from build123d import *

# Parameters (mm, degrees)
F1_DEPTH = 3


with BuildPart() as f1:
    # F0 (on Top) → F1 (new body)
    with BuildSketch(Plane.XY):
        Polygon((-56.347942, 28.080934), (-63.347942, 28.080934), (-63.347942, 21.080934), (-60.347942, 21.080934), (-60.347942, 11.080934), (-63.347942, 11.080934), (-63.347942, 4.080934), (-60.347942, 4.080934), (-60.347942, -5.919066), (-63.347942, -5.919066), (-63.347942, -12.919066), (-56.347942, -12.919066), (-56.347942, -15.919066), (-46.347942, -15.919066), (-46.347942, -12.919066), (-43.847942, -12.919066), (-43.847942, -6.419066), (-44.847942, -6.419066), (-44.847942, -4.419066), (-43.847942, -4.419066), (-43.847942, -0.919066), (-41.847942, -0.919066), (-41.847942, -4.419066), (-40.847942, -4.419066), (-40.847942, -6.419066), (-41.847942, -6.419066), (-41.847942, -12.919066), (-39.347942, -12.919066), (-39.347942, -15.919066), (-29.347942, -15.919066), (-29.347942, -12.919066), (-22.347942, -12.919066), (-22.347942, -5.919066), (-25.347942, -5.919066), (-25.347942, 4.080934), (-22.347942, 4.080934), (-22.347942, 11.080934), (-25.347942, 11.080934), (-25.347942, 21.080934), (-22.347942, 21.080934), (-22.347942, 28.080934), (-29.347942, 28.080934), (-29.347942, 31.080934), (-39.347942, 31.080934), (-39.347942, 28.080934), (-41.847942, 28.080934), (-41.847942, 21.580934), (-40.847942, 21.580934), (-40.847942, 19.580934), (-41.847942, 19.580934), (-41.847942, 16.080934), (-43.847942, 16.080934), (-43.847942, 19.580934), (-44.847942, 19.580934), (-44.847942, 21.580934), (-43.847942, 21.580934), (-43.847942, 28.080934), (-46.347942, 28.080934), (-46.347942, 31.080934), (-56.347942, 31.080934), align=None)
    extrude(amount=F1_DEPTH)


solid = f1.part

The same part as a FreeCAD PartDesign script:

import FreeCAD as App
import Part
import Sketcher

doc = App.newDocument("Part")
body = doc.addObject("PartDesign::Body", "Body")

sketch1 = body.newObject("Sketcher::SketchObject", "Sketch")
sketch1.AttachmentSupport = (doc.getObject("XY_Plane"), [""])
sketch1.MapMode = "FlatFace"
sketch1.addGeometry(Part.LineSegment(App.Vector(-56.3, 28.1, 0), App.Vector(-63.3, 28.1, 0)), False)
sketch1.addGeometry(Part.LineSegment(App.Vector(-63.3, 28.1, 0), App.Vector(-63.3, 21.1, 0)), False)
sketch1.addGeometry(Part.LineSegment(App.Vector(-63.3, 21.1, 0), App.Vector(-60.3, 21.1, 0)), False)
sketch1.addGeometry(Part.LineSegment(App.Vector(-60.3, 21.1, 0), App.Vector(-60.3, 11.1, 0)), False)
sketch1.addGeometry(Part.LineSegment(App.Vector(-60.3, 11.1, 0), App.Vector(-63.3, 11.1, 0)), False)
sketch1.addGeometry(Part.LineSegment(App.Vector(-63.3, 11.1, 0), App.Vector(-63.3, 4.1, 0)), False)
sketch1.addGeometry(Part.LineSegment(App.Vector(-63.3, 4.1, 0), App.Vector(-60.3, 4.1, 0)), False)
sketch1.addGeometry(Part.LineSegment(App.Vector(-60.3, 4.1, 0), App.Vector(-60.3, -5.9, 0)), False)
sketch1.addGeometry(Part.LineSegment(App.Vector(-60.3, -5.9, 0), App.Vector(-63.3, -5.9, 0)), False)
sketch1.addGeometry(Part.LineSegment(App.Vector(-63.3, -5.9, 0), App.Vector(-63.3, -12.9, 0)), False)
sketch1.addGeometry(Part.LineSegment(App.Vector(-63.3, -12.9, 0), App.Vector(-56.3, -12.9, 0)), False)
sketch1.addGeometry(Part.LineSegment(App.Vector(-56.3, -12.9, 0), App.Vector(-56.3, -15.9, 0)), False)
sketch1.addGeometry(Part.LineSegment(App.Vector(-56.3, -15.9, 0), App.Vector(-46.3, -15.9, 0)), False)
sketch1.addGeometry(Part.LineSegment(App.Vector(-46.3, -15.9, 0), App.Vector(-46.3, -12.9, 0)), False)
sketch1.addGeometry(Part.LineSegment(App.Vector(-46.3, -12.9, 0), App.Vector(-43.8, -12.9, 0)), False)
sketch1.addGeometry(Part.LineSegment(App.Vector(-43.8, -12.9, 0), App.Vector(-43.8, -6.4, 0)), False)
sketch1.addGeometry(Part.LineSegment(App.Vector(-43.8, -6.4, 0), App.Vector(-44.8, -6.4, 0)), False)
sketch1.addGeometry(Part.LineSegment(App.Vector(-44.8, -6.4, 0), App.Vector(-44.8, -4.4, 0)), False)
sketch1.addGeometry(Part.LineSegment(App.Vector(-44.8, -4.4, 0), App.Vector(-43.8, -4.4, 0)), False)
sketch1.addGeometry(Part.LineSegment(App.Vector(-43.8, -4.4, 0), App.Vector(-43.8, -0.9, 0)), False)
sketch1.addGeometry(Part.LineSegment(App.Vector(-43.8, -0.9, 0), App.Vector(-41.8, -0.9, 0)), False)
sketch1.addGeometry(Part.LineSegment(App.Vector(-41.8, -0.9, 0), App.Vector(-41.8, -4.4, 0)), False)
sketch1.addGeometry(Part.LineSegment(App.Vector(-41.8, -4.4, 0), App.Vector(-40.8, -4.4, 0)), False)
sketch1.addGeometry(Part.LineSegment(App.Vector(-40.8, -4.4, 0), App.Vector(-40.8, -6.4, 0)), False)
sketch1.addGeometry(Part.LineSegment(App.Vector(-40.8, -6.4, 0), App.Vector(-41.8, -6.4, 0)), False)
sketch1.addGeometry(Part.LineSegment(App.Vector(-41.8, -6.4, 0), App.Vector(-41.8, -12.9, 0)), False)
sketch1.addGeometry(Part.LineSegment(App.Vector(-41.8, -12.9, 0), App.Vector(-39.3, -12.9, 0)), False)
sketch1.addGeometry(Part.LineSegment(App.Vector(-39.3, -12.9, 0), App.Vector(-39.3, -15.9, 0)), False)
sketch1.addGeometry(Part.LineSegment(App.Vector(-39.3, -15.9, 0), App.Vector(-29.3, -15.9, 0)), False)
sketch1.addGeometry(Part.LineSegment(App.Vector(-29.3, -15.9, 0), App.Vector(-29.3, -12.9, 0)), False)
sketch1.addGeometry(Part.LineSegment(App.Vector(-29.3, -12.9, 0), App.Vector(-22.3, -12.9, 0)), False)
sketch1.addGeometry(Part.LineSegment(App.Vector(-22.3, -12.9, 0), App.Vector(-22.3, -5.9, 0)), False)
sketch1.addGeometry(Part.LineSegment(App.Vector(-22.3, -5.9, 0), App.Vector(-25.3, -5.9, 0)), False)
sketch1.addGeometry(Part.LineSegment(App.Vector(-25.3, -5.9, 0), App.Vector(-25.3, 4.1, 0)), False)
sketch1.addGeometry(Part.LineSegment(App.Vector(-25.3, 4.1, 0), App.Vector(-22.3, 4.1, 0)), False)
sketch1.addGeometry(Part.LineSegment(App.Vector(-22.3, 4.1, 0), App.Vector(-22.3, 11.1, 0)), False)
sketch1.addGeometry(Part.LineSegment(App.Vector(-22.3, 11.1, 0), App.Vector(-25.3, 11.1, 0)), False)
sketch1.addGeometry(Part.LineSegment(App.Vector(-25.3, 11.1, 0), App.Vector(-25.3, 21.1, 0)), False)
sketch1.addGeometry(Part.LineSegment(App.Vector(-25.3, 21.1, 0), App.Vector(-22.3, 21.1, 0)), False)
sketch1.addGeometry(Part.LineSegment(App.Vector(-22.3, 21.1, 0), App.Vector(-22.3, 28.1, 0)), False)
sketch1.addGeometry(Part.LineSegment(App.Vector(-22.3, 28.1, 0), App.Vector(-29.3, 28.1, 0)), False)
sketch1.addGeometry(Part.LineSegment(App.Vector(-29.3, 28.1, 0), App.Vector(-29.3, 31.1, 0)), False)
sketch1.addGeometry(Part.LineSegment(App.Vector(-29.3, 31.1, 0), App.Vector(-39.3, 31.1, 0)), False)
sketch1.addGeometry(Part.LineSegment(App.Vector(-39.3, 31.1, 0), App.Vector(-39.3, 28.1, 0)), False)
sketch1.addGeometry(Part.LineSegment(App.Vector(-39.3, 28.1, 0), App.Vector(-41.8, 28.1, 0)), False)
sketch1.addGeometry(Part.LineSegment(App.Vector(-41.8, 28.1, 0), App.Vector(-41.8, 21.6, 0)), False)
sketch1.addGeometry(Part.LineSegment(App.Vector(-41.8, 21.6, 0), App.Vector(-40.8, 21.6, 0)), False)
sketch1.addGeometry(Part.LineSegment(App.Vector(-40.8, 21.6, 0), App.Vector(-40.8, 19.6, 0)), False)
sketch1.addGeometry(Part.LineSegment(App.Vector(-40.8, 19.6, 0), App.Vector(-41.8, 19.6, 0)), False)
sketch1.addGeometry(Part.LineSegment(App.Vector(-41.8, 19.6, 0), App.Vector(-41.8, 16.1, 0)), False)
sketch1.addGeometry(Part.LineSegment(App.Vector(-41.8, 16.1, 0), App.Vector(-43.8, 16.1, 0)), False)
sketch1.addGeometry(Part.LineSegment(App.Vector(-43.8, 16.1, 0), App.Vector(-43.8, 19.6, 0)), False)
sketch1.addGeometry(Part.LineSegment(App.Vector(-43.8, 19.6, 0), App.Vector(-44.8, 19.6, 0)), False)
sketch1.addGeometry(Part.LineSegment(App.Vector(-44.8, 19.6, 0), App.Vector(-44.8, 21.6, 0)), False)
sketch1.addGeometry(Part.LineSegment(App.Vector(-44.8, 21.6, 0), App.Vector(-43.8, 21.6, 0)), False)
sketch1.addGeometry(Part.LineSegment(App.Vector(-43.8, 21.6, 0), App.Vector(-43.8, 28.1, 0)), False)
sketch1.addGeometry(Part.LineSegment(App.Vector(-43.8, 28.1, 0), App.Vector(-46.3, 28.1, 0)), False)
sketch1.addGeometry(Part.LineSegment(App.Vector(-46.3, 28.1, 0), App.Vector(-46.3, 31.1, 0)), False)
sketch1.addGeometry(Part.LineSegment(App.Vector(-46.3, 31.1, 0), App.Vector(-56.3, 31.1, 0)), False)
sketch1.addGeometry(Part.LineSegment(App.Vector(-56.3, 31.1, 0), App.Vector(-56.3, 28.1, 0)), False)
sketch1.addConstraint(Sketcher.Constraint("Coincident", 0, 2, 1, 1))
sketch1.addConstraint(Sketcher.Constraint("Coincident", 1, 2, 2, 1))
sketch1.addConstraint(Sketcher.Constraint("Coincident", 2, 2, 3, 1))
sketch1.addConstraint(Sketcher.Constraint("Coincident", 3, 2, 4, 1))
sketch1.addConstraint(Sketcher.Constraint("Coincident", 4, 2, 5, 1))
sketch1.addConstraint(Sketcher.Constraint("Coincident", 5, 2, 6, 1))
sketch1.addConstraint(Sketcher.Constraint("Coincident", 6, 2, 7, 1))
sketch1.addConstraint(Sketcher.Constraint("Coincident", 7, 2, 8, 1))
sketch1.addConstraint(Sketcher.Constraint("Coincident", 8, 2, 9, 1))
sketch1.addConstraint(Sketcher.Constraint("Coincident", 9, 2, 10, 1))
sketch1.addConstraint(Sketcher.Constraint("Coincident", 10, 2, 11, 1))
sketch1.addConstraint(Sketcher.Constraint("Coincident", 11, 2, 12, 1))
sketch1.addConstraint(Sketcher.Constraint("Coincident", 12, 2, 13, 1))
sketch1.addConstraint(Sketcher.Constraint("Coincident", 13, 2, 14, 1))
sketch1.addConstraint(Sketcher.Constraint("Coincident", 14, 2, 15, 1))
sketch1.addConstraint(Sketcher.Constraint("Coincident", 15, 2, 16, 1))
sketch1.addConstraint(Sketcher.Constraint("Coincident", 16, 2, 17, 1))
sketch1.addConstraint(Sketcher.Constraint("Coincident", 17, 2, 18, 1))
sketch1.addConstraint(Sketcher.Constraint("Coincident", 18, 2, 19, 1))
sketch1.addConstraint(Sketcher.Constraint("Coincident", 19, 2, 20, 1))
sketch1.addConstraint(Sketcher.Constraint("Coincident", 20, 2, 21, 1))
sketch1.addConstraint(Sketcher.Constraint("Coincident", 21, 2, 22, 1))
sketch1.addConstraint(Sketcher.Constraint("Coincident", 22, 2, 23, 1))
sketch1.addConstraint(Sketcher.Constraint("Coincident", 23, 2, 24, 1))
sketch1.addConstraint(Sketcher.Constraint("Coincident", 24, 2, 25, 1))
sketch1.addConstraint(Sketcher.Constraint("Coincident", 25, 2, 26, 1))
sketch1.addConstraint(Sketcher.Constraint("Coincident", 26, 2, 27, 1))
sketch1.addConstraint(Sketcher.Constraint("Coincident", 27, 2, 28, 1))
sketch1.addConstraint(Sketcher.Constraint("Coincident", 28, 2, 29, 1))
sketch1.addConstraint(Sketcher.Constraint("Coincident", 29, 2, 30, 1))
sketch1.addConstraint(Sketcher.Constraint("Coincident", 30, 2, 31, 1))
sketch1.addConstraint(Sketcher.Constraint("Coincident", 31, 2, 32, 1))
sketch1.addConstraint(Sketcher.Constraint("Coincident", 32, 2, 33, 1))
sketch1.addConstraint(Sketcher.Constraint("Coincident", 33, 2, 34, 1))
sketch1.addConstraint(Sketcher.Constraint("Coincident", 34, 2, 35, 1))
sketch1.addConstraint(Sketcher.Constraint("Coincident", 35, 2, 36, 1))
sketch1.addConstraint(Sketcher.Constraint("Coincident", 36, 2, 37, 1))
sketch1.addConstraint(Sketcher.Constraint("Coincident", 37, 2, 38, 1))
sketch1.addConstraint(Sketcher.Constraint("Coincident", 38, 2, 39, 1))
sketch1.addConstraint(Sketcher.Constraint("Coincident", 39, 2, 40, 1))
sketch1.addConstraint(Sketcher.Constraint("Coincident", 40, 2, 41, 1))
sketch1.addConstraint(Sketcher.Constraint("Coincident", 41, 2, 42, 1))
sketch1.addConstraint(Sketcher.Constraint("Coincident", 42, 2, 43, 1))
sketch1.addConstraint(Sketcher.Constraint("Coincident", 43, 2, 44, 1))
sketch1.addConstraint(Sketcher.Constraint("Coincident", 44, 2, 45, 1))
sketch1.addConstraint(Sketcher.Constraint("Coincident", 45, 2, 46, 1))
sketch1.addConstraint(Sketcher.Constraint("Coincident", 46, 2, 47, 1))
sketch1.addConstraint(Sketcher.Constraint("Coincident", 47, 2, 48, 1))
sketch1.addConstraint(Sketcher.Constraint("Coincident", 48, 2, 49, 1))
sketch1.addConstraint(Sketcher.Constraint("Coincident", 49, 2, 50, 1))
sketch1.addConstraint(Sketcher.Constraint("Coincident", 50, 2, 51, 1))
sketch1.addConstraint(Sketcher.Constraint("Coincident", 51, 2, 52, 1))
sketch1.addConstraint(Sketcher.Constraint("Coincident", 52, 2, 53, 1))
sketch1.addConstraint(Sketcher.Constraint("Coincident", 53, 2, 54, 1))
sketch1.addConstraint(Sketcher.Constraint("Coincident", 54, 2, 55, 1))
sketch1.addConstraint(Sketcher.Constraint("Coincident", 55, 2, 56, 1))
sketch1.addConstraint(Sketcher.Constraint("Coincident", 56, 2, 57, 1))
sketch1.addConstraint(Sketcher.Constraint("Coincident", 57, 2, 58, 1))
sketch1.addConstraint(Sketcher.Constraint("Coincident", 58, 2, 59, 1))
sketch1.addConstraint(Sketcher.Constraint("Coincident", 59, 2, 0, 1))
sketch1.addConstraint(Sketcher.Constraint("Horizontal", 0))
sketch1.addConstraint(Sketcher.Constraint("Vertical", 1))
sketch1.addConstraint(Sketcher.Constraint("Horizontal", 2))
sketch1.addConstraint(Sketcher.Constraint("Vertical", 3))
sketch1.addConstraint(Sketcher.Constraint("Horizontal", 4))
sketch1.addConstraint(Sketcher.Constraint("Vertical", 5))
sketch1.addConstraint(Sketcher.Constraint("Horizontal", 6))
sketch1.addConstraint(Sketcher.Constraint("Vertical", 7))
sketch1.addConstraint(Sketcher.Constraint("Horizontal", 8))
sketch1.addConstraint(Sketcher.Constraint("Vertical", 9))
sketch1.addConstraint(Sketcher.Constraint("Horizontal", 10))
sketch1.addConstraint(Sketcher.Constraint("Vertical", 11))
sketch1.addConstraint(Sketcher.Constraint("Horizontal", 12))
sketch1.addConstraint(Sketcher.Constraint("Vertical", 13))
sketch1.addConstraint(Sketcher.Constraint("Horizontal", 14))
sketch1.addConstraint(Sketcher.Constraint("Vertical", 15))
sketch1.addConstraint(Sketcher.Constraint("Horizontal", 16))
sketch1.addConstraint(Sketcher.Constraint("Vertical", 17))
sketch1.addConstraint(Sketcher.Constraint("Horizontal", 18))
sketch1.addConstraint(Sketcher.Constraint("Vertical", 19))
sketch1.addConstraint(Sketcher.Constraint("Horizontal", 20))
sketch1.addConstraint(Sketcher.Constraint("Vertical", 21))
sketch1.addConstraint(Sketcher.Constraint("Horizontal", 22))
sketch1.addConstraint(Sketcher.Constraint("Vertical", 23))
sketch1.addConstraint(Sketcher.Constraint("Horizontal", 24))
sketch1.addConstraint(Sketcher.Constraint("Vertical", 25))
sketch1.addConstraint(Sketcher.Constraint("Horizontal", 26))
sketch1.addConstraint(Sketcher.Constraint("Vertical", 27))
sketch1.addConstraint(Sketcher.Constraint("Horizontal", 28))
sketch1.addConstraint(Sketcher.Constraint("Vertical", 29))
sketch1.addConstraint(Sketcher.Constraint("Horizontal", 30))
sketch1.addConstraint(Sketcher.Constraint("Vertical", 31))
sketch1.addConstraint(Sketcher.Constraint("Horizontal", 32))
sketch1.addConstraint(Sketcher.Constraint("Vertical", 33))
sketch1.addConstraint(Sketcher.Constraint("Horizontal", 34))
sketch1.addConstraint(Sketcher.Constraint("Vertical", 35))
sketch1.addConstraint(Sketcher.Constraint("Horizontal", 36))
sketch1.addConstraint(Sketcher.Constraint("Vertical", 37))
sketch1.addConstraint(Sketcher.Constraint("Horizontal", 38))
sketch1.addConstraint(Sketcher.Constraint("Vertical", 39))
sketch1.addConstraint(Sketcher.Constraint("Horizontal", 40))
sketch1.addConstraint(Sketcher.Constraint("Vertical", 41))
sketch1.addConstraint(Sketcher.Constraint("Horizontal", 42))
sketch1.addConstraint(Sketcher.Constraint("Vertical", 43))
sketch1.addConstraint(Sketcher.Constraint("Horizontal", 44))
sketch1.addConstraint(Sketcher.Constraint("Vertical", 45))
sketch1.addConstraint(Sketcher.Constraint("Horizontal", 46))
sketch1.addConstraint(Sketcher.Constraint("Vertical", 47))
sketch1.addConstraint(Sketcher.Constraint("Horizontal", 48))
sketch1.addConstraint(Sketcher.Constraint("Vertical", 49))
sketch1.addConstraint(Sketcher.Constraint("Horizontal", 50))
sketch1.addConstraint(Sketcher.Constraint("Vertical", 51))
sketch1.addConstraint(Sketcher.Constraint("Horizontal", 52))
sketch1.addConstraint(Sketcher.Constraint("Vertical", 53))
sketch1.addConstraint(Sketcher.Constraint("Horizontal", 54))
sketch1.addConstraint(Sketcher.Constraint("Vertical", 55))
sketch1.addConstraint(Sketcher.Constraint("Horizontal", 56))
sketch1.addConstraint(Sketcher.Constraint("Vertical", 57))
sketch1.addConstraint(Sketcher.Constraint("Horizontal", 58))
sketch1.addConstraint(Sketcher.Constraint("Vertical", 59))
sketch1.addConstraint(Sketcher.Constraint("Horizontal", 10, 2, 13, 2))
sketch1.addConstraint(Sketcher.Constraint("Horizontal", 18, 2, 21, 2))
sketch1.addConstraint(Sketcher.Constraint("Horizontal", 16, 2, 23, 2))
sketch1.addConstraint(Sketcher.Constraint("Horizontal", 14, 2, 25, 2))
sketch1.addConstraint(Sketcher.Constraint("Horizontal", 12, 2, 27, 2))
sketch1.addConstraint(Sketcher.Constraint("Horizontal", 26, 2, 29, 2))
sketch1.addConstraint(Sketcher.Constraint("Horizontal", 8, 2, 31, 2))
sketch1.addConstraint(Sketcher.Constraint("Horizontal", 6, 2, 33, 2))
sketch1.addConstraint(Sketcher.Constraint("Horizontal", 4, 2, 35, 2))
sketch1.addConstraint(Sketcher.Constraint("Horizontal", 2, 2, 37, 2))
sketch1.addConstraint(Sketcher.Constraint("Horizontal", 0, 2, 39, 2))
sketch1.addConstraint(Sketcher.Constraint("Horizontal", 40, 2, 43, 2))
sketch1.addConstraint(Sketcher.Constraint("Horizontal", 48, 2, 51, 2))
sketch1.addConstraint(Sketcher.Constraint("Horizontal", 46, 2, 53, 2))
sketch1.addConstraint(Sketcher.Constraint("Horizontal", 44, 2, 55, 2))
sketch1.addConstraint(Sketcher.Constraint("Horizontal", 42, 2, 57, 2))
sketch1.addConstraint(Sketcher.Constraint("Vertical", 1, 2, 4, 2))
sketch1.addConstraint(Sketcher.Constraint("Vertical", 3, 2, 6, 2))
sketch1.addConstraint(Sketcher.Constraint("Vertical", 5, 2, 8, 2))
sketch1.addConstraint(Sketcher.Constraint("Vertical", 15, 2, 18, 2))
sketch1.addConstraint(Sketcher.Constraint("Vertical", 21, 2, 24, 2))
sketch1.addConstraint(Sketcher.Constraint("Vertical", 31, 2, 34, 2))
sketch1.addConstraint(Sketcher.Constraint("Vertical", 33, 2, 36, 2))
sketch1.addConstraint(Sketcher.Constraint("Vertical", 35, 2, 38, 2))
sketch1.addConstraint(Sketcher.Constraint("Vertical", 29, 2, 40, 2))
sketch1.addConstraint(Sketcher.Constraint("Vertical", 27, 2, 42, 2))
sketch1.addConstraint(Sketcher.Constraint("Vertical", 25, 2, 44, 2))
sketch1.addConstraint(Sketcher.Constraint("Vertical", 23, 2, 46, 2))
sketch1.addConstraint(Sketcher.Constraint("Vertical", 45, 2, 48, 2))
sketch1.addConstraint(Sketcher.Constraint("Vertical", 19, 2, 50, 2))
sketch1.addConstraint(Sketcher.Constraint("Vertical", 17, 2, 52, 2))
sketch1.addConstraint(Sketcher.Constraint("Vertical", 51, 2, 54, 2))
sketch1.addConstraint(Sketcher.Constraint("Vertical", 13, 2, 56, 2))
sketch1.addConstraint(Sketcher.Constraint("Vertical", 11, 2, 58, 2))
sketch1.addConstraint(Sketcher.Constraint("Equal", 18, 22))
sketch1.addConstraint(Sketcher.Constraint("Equal", 14, 26))
sketch1.addConstraint(Sketcher.Constraint("Equal", 12, 28))
sketch1.addConstraint(Sketcher.Constraint("Equal", 10, 30))
sketch1.addConstraint(Sketcher.Constraint("Equal", 8, 32))
sketch1.addConstraint(Sketcher.Constraint("Equal", 40, 1))
sketch1.addConstraint(Sketcher.Constraint("Equal", 58, 3))
sketch1.addConstraint(Sketcher.Constraint("Equal", 1, 5))
sketch1.addConstraint(Sketcher.Constraint("Equal", 3, 7))
sketch1.addConstraint(Sketcher.Constraint("Equal", 5, 9))
sketch1.addConstraint(Sketcher.Constraint("Equal", 38, 11))
sketch1.addConstraint(Sketcher.Constraint("Equal", 50, 17))
sketch1.addConstraint(Sketcher.Constraint("Equal", 29, 41))
sketch1.addConstraint(Sketcher.Constraint("Equal", 25, 45))
sketch1.addConstraint(Sketcher.Constraint("Equal", 23, 47))
sketch1.addConstraint(Sketcher.Constraint("Equal", 21, 49))
sketch1.addConstraint(Sketcher.Constraint("DistanceX", 0, 2, 0, 1, 7.0))
sketch1.addConstraint(Sketcher.Constraint("DistanceX", 2, 1, 2, 2, 3.0))
sketch1.addConstraint(Sketcher.Constraint("DistanceX", 12, 1, 12, 2, 10.0))
sketch1.addConstraint(Sketcher.Constraint("DistanceX", 16, 2, 16, 1, 1.0))
sketch1.addConstraint(Sketcher.Constraint("DistanceX", 20, 1, 20, 2, 2.0))
sketch1.addConstraint(Sketcher.Constraint("DistanceX", 14, 1, 14, 2, 2.5))
sketch1.addConstraint(Sketcher.Constraint("DistanceY", 15, 1, 15, 2, 6.5))
sketch1.addConstraint(Sketcher.Constraint("DistanceY", 19, 1, 19, 2, 3.5))
sketch1.addConstraint(Sketcher.Constraint("DistanceX", 28, 2, -1, 1, 29.347942))
sketch1.addConstraint(Sketcher.Constraint("DistanceY", -1, 1, 0, 2, 28.080934))
pad1 = body.newObject("PartDesign::Pad", "Pad")
pad1.Profile = sketch1
pad1.Length = 3

doc.recompute()
